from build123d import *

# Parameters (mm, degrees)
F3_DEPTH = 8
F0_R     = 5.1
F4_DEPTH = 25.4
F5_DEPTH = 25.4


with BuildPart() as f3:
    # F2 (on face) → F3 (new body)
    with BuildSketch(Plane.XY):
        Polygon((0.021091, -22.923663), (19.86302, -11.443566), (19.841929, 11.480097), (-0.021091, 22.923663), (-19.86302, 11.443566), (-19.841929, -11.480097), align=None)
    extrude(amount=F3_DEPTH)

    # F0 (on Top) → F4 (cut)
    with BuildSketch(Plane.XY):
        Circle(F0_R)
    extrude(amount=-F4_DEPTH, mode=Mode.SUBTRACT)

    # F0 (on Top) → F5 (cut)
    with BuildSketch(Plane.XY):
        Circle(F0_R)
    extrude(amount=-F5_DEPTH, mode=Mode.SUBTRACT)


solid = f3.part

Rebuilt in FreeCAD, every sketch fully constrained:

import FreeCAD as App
import Part
import Sketcher
from FreeCAD import Vector
Q = App.Units.Quantity

doc = App.newDocument("Part")
params = doc.addObject("Spreadsheet::Sheet", "Params")
for row, (alias, value) in enumerate([
    ("pad1_length", "8 mm"),
    ("sketch2_diameter", "10.2 mm"),
    ("pocket1_length", "25.4 mm"),
    ("sketch3_diameter", "10.2 mm"),
    ("pocket2_length", "25.4 mm"),
], start=1):
    params.set(f"A{row}", alias)
    params.set(f"B{row}", "=" + value)
    params.setAlias(f"B{row}", alias)

body = doc.addObject("PartDesign::Body", "Body")

# Sketch on XY plane
sketch1 = body.newObject("Sketcher::SketchObject", "Sketch")
sketch1.AttachmentSupport = (doc.getObject("XY_Plane"), [""])
sketch1.MapMode = "FlatFace"
sketch1.addGeometry([
    Part.LineSegment(Vector(0.021091, -22.923663, 0), Vector(19.86302, -11.443566, 0)),  # 0
    Part.LineSegment(Vector(19.86302, -11.443566, 0), Vector(19.841929, 11.480097, 0)),  # 1
    Part.LineSegment(Vector(19.841929, 11.480097, 0), Vector(-0.021091, 22.923663, 0)),  # 2
    Part.LineSegment(Vector(-0.021091, 22.923663, 0), Vector(-19.86302, 11.443566, 0)),  # 3
    Part.LineSegment(Vector(-19.86302, 11.443566, 0), Vector(-19.841929, -11.480097, 0)),  # 4
    Part.LineSegment(Vector(-19.841929, -11.480097, 0), Vector(0.021091, -22.923663, 0)),  # 5
], False)
sketch1.addConstraint([
    Sketcher.Constraint("Coincident", 0, 2, 1, 1),
    Sketcher.Constraint("Coincident", 1, 2, 2, 1),
    Sketcher.Constraint("Coincident", 2, 2, 3, 1),
    Sketcher.Constraint("Coincident", 3, 2, 4, 1),
    Sketcher.Constraint("Coincident", 4, 2, 5, 1),
    Sketcher.Constraint("Coincident", 5, 2, 0, 1),
    Sketcher.Constraint("Symmetric", 0, 2, 3, 2, -1, 1),
    Sketcher.Constraint("Symmetric", 1, 2, 4, 2, -1, 1),
    Sketcher.Constraint("Symmetric", 2, 2, 5, 2, -1, 1),
    Sketcher.Constraint("Equal", 0, 1),
    Sketcher.Constraint("Equal", 1, 2),
    Sketcher.Constraint("DistanceX", -1, 1, 0, 2, Q("19.86302 mm")),
    Sketcher.Constraint("DistanceX", -1, 1, 1, 2, Q("19.841929 mm")),
    Sketcher.Constraint("DistanceX", 2, 2, -1, 1, Q("0.021091 mm")),
    Sketcher.Constraint("DistanceY", 0, 2, 2, 2, Q("34.367229 mm")),
])
pad1 = body.newObject("PartDesign::Pad", "Pad")
pad1.Profile = sketch1
pad1.setExpression("Length", "Params.pad1_length")

# Sketch on XY plane
sketch2 = body.newObject("Sketcher::SketchObject", "Sketch001")
sketch2.AttachmentSupport = (doc.getObject("XY_Plane"), [""])
sketch2.MapMode = "FlatFace"
sketch2.addGeometry(Part.Circle(Vector(0, 0, 0), Vector(0, 0, 1), 5.1), False)
sketch2.addConstraint([
    Sketcher.Constraint("Coincident", 0, 3, -1, 1),
    Sketcher.Constraint("Diameter", 0, Q("10.2 mm")),
])
sketch2.setExpression("Constraints[1]", "Params.sketch2_diameter")
pocket1 = body.newObject("PartDesign::Pocket", "Pocket")
pocket1.Profile = sketch2
pocket1.setExpression("Length", "Params.pocket1_length")

# Sketch on XY plane
sketch3 = body.newObject("Sketcher::SketchObject", "Sketch002")
sketch3.AttachmentSupport = (doc.getObject("XY_Plane"), [""])
sketch3.MapMode = "FlatFace"
sketch3.addGeometry(Part.Circle(Vector(0, 0, 0), Vector(0, 0, 1), 5.1), False)
sketch3.addConstraint([
    Sketcher.Constraint("Coincident", 0, 3, -1, 1),
    Sketcher.Constraint("Diameter", 0, Q("10.2 mm")),
])
sketch3.setExpression("Constraints[1]", "Params.sketch3_diameter")
pocket2 = body.newObject("PartDesign::Pocket", "Pocket001")
pocket2.Profile = sketch3
pocket2.setExpression("Length", "Params.pocket2_length")

doc.recompute()
